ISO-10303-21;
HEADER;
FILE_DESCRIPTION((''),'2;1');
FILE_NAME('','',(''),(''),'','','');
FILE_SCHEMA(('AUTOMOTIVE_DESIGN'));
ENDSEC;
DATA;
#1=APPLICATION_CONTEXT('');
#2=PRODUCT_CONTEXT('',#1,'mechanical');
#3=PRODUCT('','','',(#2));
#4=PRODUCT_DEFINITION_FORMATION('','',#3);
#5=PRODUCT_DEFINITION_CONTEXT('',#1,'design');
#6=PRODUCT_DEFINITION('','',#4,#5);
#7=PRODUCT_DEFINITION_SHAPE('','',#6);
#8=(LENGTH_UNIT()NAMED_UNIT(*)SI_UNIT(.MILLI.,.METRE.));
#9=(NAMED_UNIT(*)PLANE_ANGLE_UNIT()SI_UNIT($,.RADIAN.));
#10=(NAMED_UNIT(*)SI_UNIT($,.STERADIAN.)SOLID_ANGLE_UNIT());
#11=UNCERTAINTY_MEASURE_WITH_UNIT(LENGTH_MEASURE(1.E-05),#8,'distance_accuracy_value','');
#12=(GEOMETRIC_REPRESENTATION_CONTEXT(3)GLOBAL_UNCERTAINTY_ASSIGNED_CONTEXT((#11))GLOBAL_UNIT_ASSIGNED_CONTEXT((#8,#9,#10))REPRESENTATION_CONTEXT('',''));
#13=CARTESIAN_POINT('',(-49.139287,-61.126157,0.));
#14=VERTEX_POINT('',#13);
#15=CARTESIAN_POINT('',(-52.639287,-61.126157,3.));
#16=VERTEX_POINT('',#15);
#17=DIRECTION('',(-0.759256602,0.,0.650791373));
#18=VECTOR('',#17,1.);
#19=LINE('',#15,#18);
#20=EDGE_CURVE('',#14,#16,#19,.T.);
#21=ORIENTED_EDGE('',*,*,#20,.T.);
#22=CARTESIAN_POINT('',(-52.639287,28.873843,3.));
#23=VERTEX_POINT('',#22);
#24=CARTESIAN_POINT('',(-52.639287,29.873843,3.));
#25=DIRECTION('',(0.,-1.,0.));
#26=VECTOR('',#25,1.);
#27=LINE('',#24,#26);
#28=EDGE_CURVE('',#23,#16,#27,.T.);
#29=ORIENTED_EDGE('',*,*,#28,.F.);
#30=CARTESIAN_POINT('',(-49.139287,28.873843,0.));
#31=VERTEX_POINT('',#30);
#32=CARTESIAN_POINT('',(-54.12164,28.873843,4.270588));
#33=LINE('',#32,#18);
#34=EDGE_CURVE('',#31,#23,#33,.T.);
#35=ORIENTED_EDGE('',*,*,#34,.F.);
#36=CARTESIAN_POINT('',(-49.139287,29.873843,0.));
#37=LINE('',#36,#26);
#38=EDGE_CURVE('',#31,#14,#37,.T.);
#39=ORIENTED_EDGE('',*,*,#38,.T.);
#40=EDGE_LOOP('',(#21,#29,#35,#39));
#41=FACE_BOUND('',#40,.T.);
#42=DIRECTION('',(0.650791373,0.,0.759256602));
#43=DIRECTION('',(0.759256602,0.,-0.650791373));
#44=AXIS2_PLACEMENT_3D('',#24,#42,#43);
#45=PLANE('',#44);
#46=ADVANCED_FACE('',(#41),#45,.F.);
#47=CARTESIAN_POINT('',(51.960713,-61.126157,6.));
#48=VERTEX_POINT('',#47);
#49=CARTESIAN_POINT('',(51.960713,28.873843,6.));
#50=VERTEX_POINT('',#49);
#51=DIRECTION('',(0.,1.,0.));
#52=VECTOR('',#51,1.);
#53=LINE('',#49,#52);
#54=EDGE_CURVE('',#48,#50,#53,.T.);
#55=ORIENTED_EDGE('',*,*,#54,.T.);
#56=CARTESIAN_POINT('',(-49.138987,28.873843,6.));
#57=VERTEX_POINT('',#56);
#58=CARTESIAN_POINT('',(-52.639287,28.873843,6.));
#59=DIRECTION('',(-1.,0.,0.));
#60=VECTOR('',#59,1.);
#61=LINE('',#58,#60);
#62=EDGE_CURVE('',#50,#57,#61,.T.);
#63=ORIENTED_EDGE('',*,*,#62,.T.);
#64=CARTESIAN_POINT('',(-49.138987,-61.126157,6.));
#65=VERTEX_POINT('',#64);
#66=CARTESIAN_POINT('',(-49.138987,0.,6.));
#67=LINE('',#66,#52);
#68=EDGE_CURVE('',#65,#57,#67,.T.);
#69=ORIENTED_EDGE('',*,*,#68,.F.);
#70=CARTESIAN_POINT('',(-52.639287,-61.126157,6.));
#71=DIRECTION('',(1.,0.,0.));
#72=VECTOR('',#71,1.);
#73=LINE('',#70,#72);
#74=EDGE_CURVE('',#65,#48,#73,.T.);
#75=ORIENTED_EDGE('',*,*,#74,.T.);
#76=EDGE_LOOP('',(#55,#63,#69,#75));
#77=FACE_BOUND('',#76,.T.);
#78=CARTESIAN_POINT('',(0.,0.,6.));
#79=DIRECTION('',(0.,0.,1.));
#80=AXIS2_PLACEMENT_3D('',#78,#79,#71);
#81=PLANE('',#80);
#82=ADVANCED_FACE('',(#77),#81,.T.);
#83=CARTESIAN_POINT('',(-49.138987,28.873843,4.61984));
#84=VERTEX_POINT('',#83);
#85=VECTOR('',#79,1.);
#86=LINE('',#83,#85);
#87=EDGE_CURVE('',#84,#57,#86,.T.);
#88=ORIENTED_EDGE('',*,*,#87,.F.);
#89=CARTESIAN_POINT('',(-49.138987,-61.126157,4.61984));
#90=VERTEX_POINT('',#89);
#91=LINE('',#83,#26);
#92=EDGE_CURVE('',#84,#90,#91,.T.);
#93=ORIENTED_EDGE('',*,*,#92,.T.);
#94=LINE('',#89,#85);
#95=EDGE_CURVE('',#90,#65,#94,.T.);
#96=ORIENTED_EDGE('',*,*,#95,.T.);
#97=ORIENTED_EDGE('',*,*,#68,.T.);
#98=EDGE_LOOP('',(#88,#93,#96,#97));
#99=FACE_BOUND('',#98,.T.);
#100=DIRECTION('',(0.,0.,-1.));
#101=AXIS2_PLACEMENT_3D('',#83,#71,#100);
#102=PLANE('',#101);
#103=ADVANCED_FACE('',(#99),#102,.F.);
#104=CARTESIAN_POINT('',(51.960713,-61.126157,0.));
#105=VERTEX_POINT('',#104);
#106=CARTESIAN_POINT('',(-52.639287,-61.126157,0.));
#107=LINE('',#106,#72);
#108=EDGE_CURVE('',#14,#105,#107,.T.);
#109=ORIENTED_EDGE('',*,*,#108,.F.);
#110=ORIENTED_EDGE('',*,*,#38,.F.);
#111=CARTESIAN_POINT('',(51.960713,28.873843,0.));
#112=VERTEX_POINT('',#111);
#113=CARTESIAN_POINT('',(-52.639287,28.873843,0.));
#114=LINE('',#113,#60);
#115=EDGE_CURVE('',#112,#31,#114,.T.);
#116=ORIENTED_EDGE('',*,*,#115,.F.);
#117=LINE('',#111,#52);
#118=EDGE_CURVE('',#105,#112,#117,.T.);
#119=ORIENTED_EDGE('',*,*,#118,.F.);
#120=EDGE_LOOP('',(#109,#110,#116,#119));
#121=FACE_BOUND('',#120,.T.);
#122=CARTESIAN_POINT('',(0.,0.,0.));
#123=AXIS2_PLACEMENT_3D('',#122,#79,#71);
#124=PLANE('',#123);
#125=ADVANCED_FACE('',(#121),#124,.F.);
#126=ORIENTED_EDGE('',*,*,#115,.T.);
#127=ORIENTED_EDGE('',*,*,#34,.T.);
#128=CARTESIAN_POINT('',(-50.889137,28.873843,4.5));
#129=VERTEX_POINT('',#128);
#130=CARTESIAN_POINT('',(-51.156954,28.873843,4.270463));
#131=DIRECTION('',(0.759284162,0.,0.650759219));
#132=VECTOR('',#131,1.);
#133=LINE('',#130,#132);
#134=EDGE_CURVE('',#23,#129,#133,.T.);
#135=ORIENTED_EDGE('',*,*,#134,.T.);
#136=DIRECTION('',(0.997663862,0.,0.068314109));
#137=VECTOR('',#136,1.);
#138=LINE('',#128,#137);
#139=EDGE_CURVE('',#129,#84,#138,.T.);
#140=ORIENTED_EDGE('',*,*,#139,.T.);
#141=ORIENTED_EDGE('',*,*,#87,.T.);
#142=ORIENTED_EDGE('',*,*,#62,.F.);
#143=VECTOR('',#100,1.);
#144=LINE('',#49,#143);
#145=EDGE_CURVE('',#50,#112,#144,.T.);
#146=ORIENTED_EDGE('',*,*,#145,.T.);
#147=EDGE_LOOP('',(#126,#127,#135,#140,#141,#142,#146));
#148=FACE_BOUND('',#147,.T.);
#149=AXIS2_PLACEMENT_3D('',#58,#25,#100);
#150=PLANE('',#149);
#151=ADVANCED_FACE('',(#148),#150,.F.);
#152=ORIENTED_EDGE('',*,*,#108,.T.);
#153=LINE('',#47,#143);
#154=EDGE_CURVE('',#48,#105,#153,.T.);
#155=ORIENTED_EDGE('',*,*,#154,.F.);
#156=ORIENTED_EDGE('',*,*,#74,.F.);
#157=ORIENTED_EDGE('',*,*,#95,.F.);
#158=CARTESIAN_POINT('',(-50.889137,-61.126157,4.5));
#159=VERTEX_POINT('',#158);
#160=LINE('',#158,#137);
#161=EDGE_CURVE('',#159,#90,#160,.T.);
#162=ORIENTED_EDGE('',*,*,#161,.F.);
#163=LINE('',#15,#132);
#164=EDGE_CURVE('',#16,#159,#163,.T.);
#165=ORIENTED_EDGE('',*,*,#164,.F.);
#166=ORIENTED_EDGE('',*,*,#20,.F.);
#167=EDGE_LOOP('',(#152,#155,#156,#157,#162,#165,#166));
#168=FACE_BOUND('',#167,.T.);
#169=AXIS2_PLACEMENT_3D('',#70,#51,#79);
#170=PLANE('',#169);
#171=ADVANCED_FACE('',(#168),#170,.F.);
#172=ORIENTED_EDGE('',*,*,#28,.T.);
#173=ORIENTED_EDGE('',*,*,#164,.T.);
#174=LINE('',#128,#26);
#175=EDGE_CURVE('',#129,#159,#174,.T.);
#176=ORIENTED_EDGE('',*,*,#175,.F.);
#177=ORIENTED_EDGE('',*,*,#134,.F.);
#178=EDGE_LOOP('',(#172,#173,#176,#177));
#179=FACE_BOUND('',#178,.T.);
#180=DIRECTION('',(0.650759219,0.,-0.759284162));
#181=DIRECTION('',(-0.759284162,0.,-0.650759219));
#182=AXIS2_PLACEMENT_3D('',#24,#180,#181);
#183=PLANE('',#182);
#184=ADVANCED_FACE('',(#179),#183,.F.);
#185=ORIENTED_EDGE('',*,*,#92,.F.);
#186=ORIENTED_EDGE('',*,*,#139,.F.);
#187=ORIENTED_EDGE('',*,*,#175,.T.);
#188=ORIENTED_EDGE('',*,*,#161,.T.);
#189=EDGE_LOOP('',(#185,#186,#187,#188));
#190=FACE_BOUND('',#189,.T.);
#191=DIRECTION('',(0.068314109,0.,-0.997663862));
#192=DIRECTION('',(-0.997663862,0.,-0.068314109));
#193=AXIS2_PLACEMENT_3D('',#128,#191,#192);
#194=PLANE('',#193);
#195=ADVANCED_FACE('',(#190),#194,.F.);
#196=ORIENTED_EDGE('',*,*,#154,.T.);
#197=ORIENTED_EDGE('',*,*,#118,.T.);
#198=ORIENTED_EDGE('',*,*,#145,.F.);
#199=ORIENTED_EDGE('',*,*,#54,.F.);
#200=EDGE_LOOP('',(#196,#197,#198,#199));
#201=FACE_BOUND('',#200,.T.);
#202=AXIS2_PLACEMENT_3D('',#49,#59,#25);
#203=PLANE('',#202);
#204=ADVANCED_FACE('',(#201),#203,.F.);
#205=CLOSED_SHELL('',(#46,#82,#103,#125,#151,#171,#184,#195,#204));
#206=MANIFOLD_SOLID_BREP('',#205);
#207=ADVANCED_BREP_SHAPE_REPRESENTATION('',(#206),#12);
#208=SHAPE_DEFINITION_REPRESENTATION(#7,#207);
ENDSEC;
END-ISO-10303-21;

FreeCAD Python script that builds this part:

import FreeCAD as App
import Part
import Sketcher
Q = App.Units.Quantity


def add_polygon(sketch, points):
    """Adds a closed chain of lines whose ends are joined by coincident constraints."""
    first, n = sketch.GeometryCount, len(points)
    for a, b in zip(points, points[1:] + points[:1]):
        sketch.addGeometry(Part.LineSegment(App.Vector(*a, 0), App.Vector(*b, 0)), False)
    for i in range(n):
        sketch.addConstraint(Sketcher.Constraint("Coincident", first + i, 2, first + (i + 1) % n, 1))

doc = App.newDocument("Part")
body = doc.addObject("PartDesign::Body", "Body")

# Sketch on XY plane
sketch1 = body.newObject("Sketcher::SketchObject", "Sketch")
sketch1.AttachmentSupport = (doc.getObject("XY_Plane"), [""])
sketch1.MapMode = "FlatFace"
add_polygon(sketch1, [(-52.639287, 28.873843), (-52.639287, -61.126157), (51.960713, -61.126157), (51.960713, 28.873843)])  # lines 0-3
sketch1.addConstraint([
    Sketcher.Constraint("Vertical", 0),
    Sketcher.Constraint("Horizontal", 1),
    Sketcher.Constraint("Vertical", 2),
    Sketcher.Constraint("Horizontal", 3),
    Sketcher.Constraint("DistanceY", 0, 2, 0, 1, Q("90 mm")),
    Sketcher.Constraint("DistanceX", 1, 1, 1, 2, Q("104.6 mm")),
    Sketcher.Constraint("DistanceX", 0, 2, -1, 1, Q("52.639287 mm")),
    Sketcher.Constraint("DistanceY", 0, 2, -1, 1, Q("61.126157 mm")),
])
pad1 = body.newObject("PartDesign::Pad", "Pad")
pad1.Profile = sketch1
pad1.Length = 6

# Sketch on XZ plane
sketch2 = body.newObject("Sketcher::SketchObject", "Sketch001")
sketch2.AttachmentSupport = (doc.getObject("XZ_Plane"), [""])
sketch2.MapMode = "FlatFace"
sketch2.AttachmentOffset = App.Placement(App.Vector(0, 0, 61.126157), App.Rotation())
add_polygon(sketch2, [(-49.138987, 6), (-52.639287, 6), (-52.639287, 3)])  # lines 0-2
sketch2.addConstraint([
    Sketcher.Constraint("Horizontal", 0),
    Sketcher.Constraint("Vertical", 1),
    Sketcher.Constraint("DistanceY", 1, 2, 1, 1, Q("3 mm")),
    Sketcher.Constraint("DistanceY", -1, 1, 0, 2, Q("6 mm")),
    Sketcher.Constraint("Distance", 2, Q("4.61 mm")),
    Sketcher.Constraint("DistanceX", 0, 2, -1, 1, Q("52.639287 mm")),
])
pocket1 = body.newObject("PartDesign::Pocket", "Pocket")
pocket1.Profile = sketch2
pocket1.Length = 91

# Sketch on XZ plane
sketch3 = body.newObject("Sketcher::SketchObject", "Sketch002")
sketch3.AttachmentSupport = (doc.getObject("XZ_Plane"), [""])
sketch3.MapMode = "FlatFace"
sketch3.AttachmentOffset = App.Placement(App.Vector(0, 0, 61.126157), App.Rotation())
add_polygon(sketch3, [(-49.139287, 0), (-52.639287, 3), (-52.639287, 0)])  # lines 0-2
sketch3.addConstraint([
    Sketcher.Constraint("Vertical", 1),
    Sketcher.Constraint("Horizontal", 2),
    Sketcher.Constraint("PointOnObject", 1, 2, -1),
    Sketcher.Constraint("DistanceY", 1, 2, 1, 1, Q("3 mm")),
    Sketcher.Constraint("DistanceX", 2, 1, 2, 2, Q("3.5 mm")),
    Sketcher.Constraint("DistanceX", 0, 2, -1, 1, Q("52.639287 mm")),
])
pocket2 = body.newObject("PartDesign::Pocket", "Pocket001")
pocket2.Profile = sketch3
pocket2.Length = 91

# Sketch on XZ plane
sketch4 = body.newObject("Sketcher::SketchObject", "Sketch003")
sketch4.AttachmentSupport = (doc.getObject("XZ_Plane"), [""])
sketch4.MapMode = "FlatFace"
sketch4.AttachmentOffset = App.Placement(App.Vector(0, 0, 61.126157), App.Rotation())
add_polygon(sketch4, [(-49.138987, 6), (-50.889137, 4.5), (-49.138987, 4.61984)])  # lines 0-2
sketch4.addConstraint([
    Sketcher.Constraint("Vertical", 2),
    Sketcher.Constraint("DistanceY", -1, 1, 2, 2, Q("6 mm")),
    Sketcher.Constraint("DistanceY", -1, 1, 0, 2, Q("4.5 mm")),
    Sketcher.Constraint("Distance", 0, Q("2.305 mm")),
    Sketcher.Constraint("DistanceY", 2, 1, 2, 2, Q("1.38016 mm")),
    Sketcher.Constraint("DistanceX", 0, 2, -1, 1, Q("50.889137 mm")),
])
pocket3 = body.newObject("PartDesign::Pocket", "Pocket002")
pocket3.Profile = sketch4
pocket3.Length = 90

doc.recompute()
